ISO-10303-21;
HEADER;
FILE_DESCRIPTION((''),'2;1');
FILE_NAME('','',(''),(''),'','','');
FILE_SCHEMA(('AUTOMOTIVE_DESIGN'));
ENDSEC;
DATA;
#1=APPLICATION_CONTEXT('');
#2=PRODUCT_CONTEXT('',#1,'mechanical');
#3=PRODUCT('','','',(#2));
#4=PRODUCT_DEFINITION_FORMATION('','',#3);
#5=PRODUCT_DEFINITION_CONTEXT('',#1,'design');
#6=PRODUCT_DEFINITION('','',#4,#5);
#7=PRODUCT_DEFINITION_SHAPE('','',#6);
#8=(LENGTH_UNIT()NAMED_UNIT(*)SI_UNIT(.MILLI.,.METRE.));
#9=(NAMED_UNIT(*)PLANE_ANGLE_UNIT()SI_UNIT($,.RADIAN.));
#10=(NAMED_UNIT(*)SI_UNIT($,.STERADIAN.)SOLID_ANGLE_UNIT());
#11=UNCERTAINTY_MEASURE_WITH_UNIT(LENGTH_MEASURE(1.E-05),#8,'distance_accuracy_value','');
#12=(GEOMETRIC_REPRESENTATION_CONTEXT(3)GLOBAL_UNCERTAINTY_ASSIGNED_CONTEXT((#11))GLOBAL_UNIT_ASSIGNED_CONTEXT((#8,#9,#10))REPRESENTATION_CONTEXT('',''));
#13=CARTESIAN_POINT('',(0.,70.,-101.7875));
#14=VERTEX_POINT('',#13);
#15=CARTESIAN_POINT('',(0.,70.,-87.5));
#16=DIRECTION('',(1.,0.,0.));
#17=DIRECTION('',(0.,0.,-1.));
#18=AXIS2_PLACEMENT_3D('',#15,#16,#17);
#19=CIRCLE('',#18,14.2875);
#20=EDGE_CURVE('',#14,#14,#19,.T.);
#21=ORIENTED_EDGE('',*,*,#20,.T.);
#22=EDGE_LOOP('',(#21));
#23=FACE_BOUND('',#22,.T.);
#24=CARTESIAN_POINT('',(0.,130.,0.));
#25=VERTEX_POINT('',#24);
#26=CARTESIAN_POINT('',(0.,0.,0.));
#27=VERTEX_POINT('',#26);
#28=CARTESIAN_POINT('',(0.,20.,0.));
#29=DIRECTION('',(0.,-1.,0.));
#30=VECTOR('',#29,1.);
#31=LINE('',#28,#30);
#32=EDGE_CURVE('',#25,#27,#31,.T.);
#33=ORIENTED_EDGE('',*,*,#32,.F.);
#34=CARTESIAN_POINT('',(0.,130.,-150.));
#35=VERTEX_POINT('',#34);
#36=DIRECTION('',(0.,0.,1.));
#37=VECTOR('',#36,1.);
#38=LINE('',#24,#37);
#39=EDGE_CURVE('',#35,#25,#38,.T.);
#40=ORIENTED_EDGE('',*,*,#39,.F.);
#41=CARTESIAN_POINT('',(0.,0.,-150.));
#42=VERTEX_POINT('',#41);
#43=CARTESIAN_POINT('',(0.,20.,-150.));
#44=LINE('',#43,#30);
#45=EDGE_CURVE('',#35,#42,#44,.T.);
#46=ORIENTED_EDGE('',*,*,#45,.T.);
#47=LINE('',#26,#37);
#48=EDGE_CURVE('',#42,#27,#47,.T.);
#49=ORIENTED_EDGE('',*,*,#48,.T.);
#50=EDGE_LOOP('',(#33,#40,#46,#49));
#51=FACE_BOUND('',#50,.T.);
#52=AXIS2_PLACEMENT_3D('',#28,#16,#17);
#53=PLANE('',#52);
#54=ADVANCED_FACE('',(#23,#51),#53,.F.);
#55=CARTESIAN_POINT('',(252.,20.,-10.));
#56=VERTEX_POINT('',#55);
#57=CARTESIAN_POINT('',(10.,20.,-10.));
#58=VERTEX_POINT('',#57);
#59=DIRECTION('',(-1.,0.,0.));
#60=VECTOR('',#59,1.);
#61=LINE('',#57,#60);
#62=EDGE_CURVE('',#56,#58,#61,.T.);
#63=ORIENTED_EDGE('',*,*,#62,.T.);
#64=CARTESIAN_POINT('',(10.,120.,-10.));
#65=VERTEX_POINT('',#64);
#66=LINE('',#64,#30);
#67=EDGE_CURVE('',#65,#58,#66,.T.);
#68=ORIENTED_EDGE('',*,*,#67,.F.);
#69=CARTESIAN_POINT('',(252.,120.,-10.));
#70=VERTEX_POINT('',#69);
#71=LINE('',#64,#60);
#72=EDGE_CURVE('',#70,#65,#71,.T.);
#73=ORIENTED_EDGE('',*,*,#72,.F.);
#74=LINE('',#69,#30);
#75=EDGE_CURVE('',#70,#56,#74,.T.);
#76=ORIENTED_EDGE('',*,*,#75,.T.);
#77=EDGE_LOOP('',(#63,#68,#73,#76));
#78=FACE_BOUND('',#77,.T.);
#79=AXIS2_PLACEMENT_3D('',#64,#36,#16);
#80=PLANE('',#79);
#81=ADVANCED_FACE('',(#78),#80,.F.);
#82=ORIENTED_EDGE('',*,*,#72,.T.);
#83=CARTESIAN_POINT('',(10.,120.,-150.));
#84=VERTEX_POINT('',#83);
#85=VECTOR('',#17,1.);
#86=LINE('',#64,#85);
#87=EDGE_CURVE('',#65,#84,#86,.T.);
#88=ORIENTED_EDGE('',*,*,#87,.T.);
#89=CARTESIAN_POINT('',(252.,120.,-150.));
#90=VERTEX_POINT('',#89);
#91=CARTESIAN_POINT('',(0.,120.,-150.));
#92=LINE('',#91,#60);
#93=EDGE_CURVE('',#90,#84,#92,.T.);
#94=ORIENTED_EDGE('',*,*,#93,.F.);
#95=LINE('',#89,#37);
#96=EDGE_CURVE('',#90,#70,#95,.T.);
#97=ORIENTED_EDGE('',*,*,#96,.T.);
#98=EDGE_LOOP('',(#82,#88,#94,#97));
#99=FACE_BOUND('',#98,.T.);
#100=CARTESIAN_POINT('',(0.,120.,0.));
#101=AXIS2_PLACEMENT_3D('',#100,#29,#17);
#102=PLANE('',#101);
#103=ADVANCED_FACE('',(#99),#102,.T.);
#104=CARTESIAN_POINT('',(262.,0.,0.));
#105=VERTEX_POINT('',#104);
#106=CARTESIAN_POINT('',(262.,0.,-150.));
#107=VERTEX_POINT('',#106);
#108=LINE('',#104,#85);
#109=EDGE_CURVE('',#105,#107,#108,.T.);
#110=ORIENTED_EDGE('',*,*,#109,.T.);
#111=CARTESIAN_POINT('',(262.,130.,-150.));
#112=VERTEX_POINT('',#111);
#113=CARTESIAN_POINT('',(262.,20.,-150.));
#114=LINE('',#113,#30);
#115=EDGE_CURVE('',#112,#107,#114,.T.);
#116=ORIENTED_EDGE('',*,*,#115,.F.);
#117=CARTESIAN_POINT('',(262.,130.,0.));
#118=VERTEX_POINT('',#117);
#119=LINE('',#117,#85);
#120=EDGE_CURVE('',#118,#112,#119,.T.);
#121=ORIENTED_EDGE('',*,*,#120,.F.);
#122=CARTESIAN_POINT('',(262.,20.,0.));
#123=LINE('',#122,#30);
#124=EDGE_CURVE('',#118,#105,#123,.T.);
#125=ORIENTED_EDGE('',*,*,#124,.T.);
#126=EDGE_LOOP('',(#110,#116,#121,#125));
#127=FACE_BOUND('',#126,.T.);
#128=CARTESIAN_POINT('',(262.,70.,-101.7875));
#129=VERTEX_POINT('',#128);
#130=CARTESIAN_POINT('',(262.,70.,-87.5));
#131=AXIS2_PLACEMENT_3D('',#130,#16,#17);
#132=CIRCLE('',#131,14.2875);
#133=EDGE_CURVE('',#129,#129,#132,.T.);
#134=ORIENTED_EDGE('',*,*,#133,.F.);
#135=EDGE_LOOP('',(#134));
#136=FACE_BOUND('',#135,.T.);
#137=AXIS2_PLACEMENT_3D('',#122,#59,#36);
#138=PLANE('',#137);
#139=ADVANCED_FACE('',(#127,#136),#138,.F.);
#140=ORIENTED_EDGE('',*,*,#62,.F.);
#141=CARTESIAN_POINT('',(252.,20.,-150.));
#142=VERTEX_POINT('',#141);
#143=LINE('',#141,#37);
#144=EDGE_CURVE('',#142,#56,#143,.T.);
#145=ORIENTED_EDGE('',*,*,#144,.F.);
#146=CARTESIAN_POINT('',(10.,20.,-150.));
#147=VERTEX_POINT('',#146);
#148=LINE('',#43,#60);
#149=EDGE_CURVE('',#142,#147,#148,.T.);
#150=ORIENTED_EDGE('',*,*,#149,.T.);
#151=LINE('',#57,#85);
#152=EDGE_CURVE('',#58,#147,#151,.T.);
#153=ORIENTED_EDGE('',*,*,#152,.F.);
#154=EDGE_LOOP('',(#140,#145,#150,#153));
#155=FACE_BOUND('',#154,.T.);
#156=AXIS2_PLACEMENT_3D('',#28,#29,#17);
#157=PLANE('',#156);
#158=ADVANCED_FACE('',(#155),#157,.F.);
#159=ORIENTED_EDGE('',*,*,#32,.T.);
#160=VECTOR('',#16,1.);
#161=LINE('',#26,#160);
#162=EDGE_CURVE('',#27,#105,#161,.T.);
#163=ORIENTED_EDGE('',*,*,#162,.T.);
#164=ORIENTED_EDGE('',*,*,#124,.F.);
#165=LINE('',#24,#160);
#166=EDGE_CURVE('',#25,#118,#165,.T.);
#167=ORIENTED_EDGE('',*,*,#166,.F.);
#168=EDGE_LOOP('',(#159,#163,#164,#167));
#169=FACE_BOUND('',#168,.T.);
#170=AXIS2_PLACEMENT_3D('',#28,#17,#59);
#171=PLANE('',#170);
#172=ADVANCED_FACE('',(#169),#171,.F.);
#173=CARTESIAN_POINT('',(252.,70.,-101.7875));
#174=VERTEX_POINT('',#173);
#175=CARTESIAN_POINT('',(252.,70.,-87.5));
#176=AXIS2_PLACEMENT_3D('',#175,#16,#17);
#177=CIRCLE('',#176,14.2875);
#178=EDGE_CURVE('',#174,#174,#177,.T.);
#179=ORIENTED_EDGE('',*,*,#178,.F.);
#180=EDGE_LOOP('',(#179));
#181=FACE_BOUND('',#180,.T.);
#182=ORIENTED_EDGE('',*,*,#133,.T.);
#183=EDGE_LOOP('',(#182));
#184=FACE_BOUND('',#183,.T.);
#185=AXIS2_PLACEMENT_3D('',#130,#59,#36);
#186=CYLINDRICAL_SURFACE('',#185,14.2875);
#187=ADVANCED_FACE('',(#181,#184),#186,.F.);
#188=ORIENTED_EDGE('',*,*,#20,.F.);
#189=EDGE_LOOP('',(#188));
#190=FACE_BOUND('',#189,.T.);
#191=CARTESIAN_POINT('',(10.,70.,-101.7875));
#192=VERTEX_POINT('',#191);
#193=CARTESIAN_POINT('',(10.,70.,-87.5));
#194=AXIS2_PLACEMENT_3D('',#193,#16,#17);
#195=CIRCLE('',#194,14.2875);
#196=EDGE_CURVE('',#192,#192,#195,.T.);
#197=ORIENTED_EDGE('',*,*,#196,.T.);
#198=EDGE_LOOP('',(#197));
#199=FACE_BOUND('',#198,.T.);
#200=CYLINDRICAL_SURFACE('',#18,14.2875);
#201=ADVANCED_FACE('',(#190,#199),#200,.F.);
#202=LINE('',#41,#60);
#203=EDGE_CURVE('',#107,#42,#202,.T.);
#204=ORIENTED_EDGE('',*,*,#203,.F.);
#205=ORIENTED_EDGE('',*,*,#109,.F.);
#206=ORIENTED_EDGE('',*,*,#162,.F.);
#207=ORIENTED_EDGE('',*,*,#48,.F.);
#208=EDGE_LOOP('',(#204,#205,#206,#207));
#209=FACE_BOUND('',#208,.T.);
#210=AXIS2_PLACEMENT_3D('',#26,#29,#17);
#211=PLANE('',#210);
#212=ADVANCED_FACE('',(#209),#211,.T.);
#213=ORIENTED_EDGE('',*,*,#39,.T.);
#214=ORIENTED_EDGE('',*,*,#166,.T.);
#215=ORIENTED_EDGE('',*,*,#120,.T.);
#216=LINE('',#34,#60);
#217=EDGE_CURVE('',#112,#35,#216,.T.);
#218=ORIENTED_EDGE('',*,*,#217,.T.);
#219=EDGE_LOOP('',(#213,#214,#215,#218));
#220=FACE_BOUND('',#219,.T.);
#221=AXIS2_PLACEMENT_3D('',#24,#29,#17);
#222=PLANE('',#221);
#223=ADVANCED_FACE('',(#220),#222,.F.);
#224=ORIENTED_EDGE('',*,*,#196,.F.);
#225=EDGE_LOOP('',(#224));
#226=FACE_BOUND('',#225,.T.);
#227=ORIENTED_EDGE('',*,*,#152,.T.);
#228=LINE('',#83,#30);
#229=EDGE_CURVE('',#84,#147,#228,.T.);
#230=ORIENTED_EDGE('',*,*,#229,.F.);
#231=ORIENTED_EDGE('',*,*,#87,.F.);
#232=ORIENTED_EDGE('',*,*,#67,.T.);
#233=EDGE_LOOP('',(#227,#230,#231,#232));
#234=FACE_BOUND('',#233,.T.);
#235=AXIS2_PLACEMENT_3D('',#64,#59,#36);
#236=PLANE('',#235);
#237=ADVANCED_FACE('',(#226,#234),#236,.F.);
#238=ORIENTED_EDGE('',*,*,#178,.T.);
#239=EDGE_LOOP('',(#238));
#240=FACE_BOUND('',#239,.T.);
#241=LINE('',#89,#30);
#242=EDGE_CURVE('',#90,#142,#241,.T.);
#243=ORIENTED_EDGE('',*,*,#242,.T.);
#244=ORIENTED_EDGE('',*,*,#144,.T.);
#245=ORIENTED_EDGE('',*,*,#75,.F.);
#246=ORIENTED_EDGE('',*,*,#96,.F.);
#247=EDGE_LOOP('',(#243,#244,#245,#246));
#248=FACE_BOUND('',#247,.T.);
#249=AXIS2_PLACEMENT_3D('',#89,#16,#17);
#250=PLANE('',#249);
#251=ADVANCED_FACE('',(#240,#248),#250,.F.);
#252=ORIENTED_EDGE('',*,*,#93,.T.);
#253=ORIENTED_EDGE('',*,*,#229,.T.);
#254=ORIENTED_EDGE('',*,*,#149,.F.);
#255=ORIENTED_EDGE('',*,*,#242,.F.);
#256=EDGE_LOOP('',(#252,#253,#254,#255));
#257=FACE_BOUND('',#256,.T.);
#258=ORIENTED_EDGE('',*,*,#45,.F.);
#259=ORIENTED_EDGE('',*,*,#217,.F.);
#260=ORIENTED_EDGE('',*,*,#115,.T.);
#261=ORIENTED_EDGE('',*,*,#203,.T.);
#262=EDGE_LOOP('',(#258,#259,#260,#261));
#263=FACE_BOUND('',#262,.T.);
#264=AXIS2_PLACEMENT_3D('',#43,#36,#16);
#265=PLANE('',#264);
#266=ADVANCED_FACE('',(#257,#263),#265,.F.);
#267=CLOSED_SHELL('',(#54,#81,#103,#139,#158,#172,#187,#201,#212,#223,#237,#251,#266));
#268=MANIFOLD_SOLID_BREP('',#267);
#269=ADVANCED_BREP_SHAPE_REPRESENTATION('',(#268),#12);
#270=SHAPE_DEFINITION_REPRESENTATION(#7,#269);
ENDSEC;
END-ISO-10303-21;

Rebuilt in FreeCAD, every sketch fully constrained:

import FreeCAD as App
import Part
import Sketcher

V = App.Vector
Q = App.Units.Quantity

doc = App.newDocument("Part")
body = doc.addObject("PartDesign::Body", "Body")

# Sketch on XZ plane
sketch1 = body.newObject("Sketcher::SketchObject", "Sketch")
sketch1.AttachmentSupport = (doc.getObject("XZ_Plane"), [""])
sketch1.MapMode = "FlatFace"
sketch1.addGeometry(Part.LineSegment(V(0, -150, 0), V(0, 0, 0)), False)
sketch1.addGeometry(Part.LineSegment(V(0, 0, 0), V(262, 0, 0)), False)
sketch1.addGeometry(Part.LineSegment(V(262, 0, 0), V(262, -150, 0)), False)
sketch1.addGeometry(Part.LineSegment(V(262, -150, 0), V(0, -150, 0)), False)
sketch1.addConstraint(Sketcher.Constraint("Coincident", 0, 2, 1, 1))
sketch1.addConstraint(Sketcher.Constraint("Coincident", 1, 2, 2, 1))
sketch1.addConstraint(Sketcher.Constraint("Coincident", 2, 2, 3, 1))
sketch1.addConstraint(Sketcher.Constraint("Coincident", 3, 2, 0, 1))
sketch1.addConstraint(Sketcher.Constraint("Vertical", 0))
sketch1.addConstraint(Sketcher.Constraint("Horizontal", 1))
sketch1.addConstraint(Sketcher.Constraint("Vertical", 2))
sketch1.addConstraint(Sketcher.Constraint("Horizontal", 3))
sketch1.addConstraint(Sketcher.Constraint("Coincident", 0, 2, -1, 1))
sketch1.addConstraint(Sketcher.Constraint("DistanceX", 1, 1, 1, 2, Q("262 mm")))
sketch1.addConstraint(Sketcher.Constraint("DistanceY", 0, 1, 0, 2, Q("150 mm")))
pad1 = body.newObject("PartDesign::Pad", "Pad")
pad1.Profile = sketch1
pad1.Length = 20
pad1.Reversed = True

# Sketch on XZ plane
sketch2 = body.newObject("Sketcher::SketchObject", "Sketch001")
sketch2.AttachmentSupport = (doc.getObject("XZ_Plane"), [""])
sketch2.MapMode = "FlatFace"
sketch2.AttachmentOffset = App.Placement(V(0, 0, -20), App.Rotation())
sketch2.addGeometry(Part.LineSegment(V(0, 0, 0), V(262, 0, 0)), False)
sketch2.addGeometry(Part.LineSegment(V(262, 0, 0), V(262, -150, 0)), False)
sketch2.addGeometry(Part.LineSegment(V(262, -150, 0), V(252, -150, 0)), False)
sketch2.addGeometry(Part.LineSegment(V(252, -150, 0), V(252, -10, 0)), False)
sketch2.addGeometry(Part.LineSegment(V(252, -10, 0), V(10, -10, 0)), False)
sketch2.addGeometry(Part.LineSegment(V(10, -10, 0), V(10, -150, 0)), False)
sketch2.addGeometry(Part.LineSegment(V(10, -150, 0), V(0, -150, 0)), False)
sketch2.addGeometry(Part.LineSegment(V(0, -150, 0), V(0, 0, 0)), False)
sketch2.addConstraint(Sketcher.Constraint("Coincident", 0, 2, 1, 1))
sketch2.addConstraint(Sketcher.Constraint("Coincident", 1, 2, 2, 1))
sketch2.addConstraint(Sketcher.Constraint("Coincident", 2, 2, 3, 1))
sketch2.addConstraint(Sketcher.Constraint("Coincident", 3, 2, 4, 1))
sketch2.addConstraint(Sketcher.Constraint("Coincident", 4, 2, 5, 1))
sketch2.addConstraint(Sketcher.Constraint("Coincident", 5, 2, 6, 1))
sketch2.addConstraint(Sketcher.Constraint("Coincident", 6, 2, 7, 1))
sketch2.addConstraint(Sketcher.Constraint("Coincident", 7, 2, 0, 1))
sketch2.addConstraint(Sketcher.Constraint("Horizontal", 0))
sketch2.addConstraint(Sketcher.Constraint("Vertical", 1))
sketch2.addConstraint(Sketcher.Constraint("Horizontal", 2))
sketch2.addConstraint(Sketcher.Constraint("Vertical", 3))
sketch2.addConstraint(Sketcher.Constraint("Horizontal", 4))
sketch2.addConstraint(Sketcher.Constraint("Vertical", 5))
sketch2.addConstraint(Sketcher.Constraint("Horizontal", 6))
sketch2.addConstraint(Sketcher.Constraint("Vertical", 7))
sketch2.addConstraint(Sketcher.Constraint("Coincident", 7, 2, -1, 1))
sketch2.addConstraint(Sketcher.Constraint("Horizontal", 2, 2, 5, 2))
sketch2.addConstraint(Sketcher.Constraint("Equal", 2, 6))
sketch2.addConstraint(Sketcher.Constraint("DistanceX", 0, 1, 0, 2, Q("262 mm")))
sketch2.addConstraint(Sketcher.Constraint("DistanceX", 2, 2, 2, 1, Q("10 mm")))
sketch2.addConstraint(Sketcher.Constraint("DistanceY", 1, 2, 1, 1, Q("150 mm")))
sketch2.addConstraint(Sketcher.Constraint("DistanceY", 3, 1, 3, 2, Q("140 mm")))
pad2 = body.newObject("PartDesign::Pad", "Pad001")
pad2.Profile = sketch2
pad2.Length = 100
pad2.Reversed = True

# Sketch on YZ plane
sketch3 = body.newObject("Sketcher::SketchObject", "Sketch002")
sketch3.AttachmentSupport = (doc.getObject("YZ_Plane"), [""])
sketch3.MapMode = "FlatFace"
sketch3.AttachmentOffset = App.Placement(V(0, 0, 10), App.Rotation())
sketch3.addGeometry(Part.Circle(V(70, -88, 0), V(0, 0, 1), 14), False)
sketch3.addConstraint(Sketcher.Constraint("Diameter", 0, Q("28.575 mm")))
sketch3.addConstraint(Sketcher.Constraint("DistanceX", -1, 1, 0, 3, Q("70 mm")))
sketch3.addConstraint(Sketcher.Constraint("DistanceY", 0, 3, -1, 1, Q("87.5 mm")))
pocket1 = body.newObject("PartDesign::Pocket", "Pocket")
pocket1.Profile = sketch3
pocket1.Type = "ThroughAll"

# Sketch on YZ plane
sketch4 = body.newObject("Sketcher::SketchObject", "Sketch003")
sketch4.AttachmentSupport = (doc.getObject("YZ_Plane"), [""])
sketch4.MapMode = "FlatFace"
sketch4.AttachmentOffset = App.Placement(V(0, 0, 252), App.Rotation())
sketch4.addGeometry(Part.Circle(V(70, -88, 0), V(0, 0, 1), 14), False)
sketch4.addConstraint(Sketcher.Constraint("Diameter", 0, Q("28.575 mm")))
sketch4.addConstraint(Sketcher.Constraint("DistanceX", -1, 1, 0, 3, Q("70 mm")))
sketch4.addConstraint(Sketcher.Constraint("DistanceY", 0, 3, -1, 1, Q("87.5 mm")))
pocket2 = body.newObject("PartDesign::Pocket", "Pocket001")
pocket2.Profile = sketch4
pocket2.Type = "ThroughAll"
pocket2.Reversed = True

# Sketch on XZ plane
sketch5 = body.newObject("Sketcher::SketchObject", "Sketch004")
sketch5.AttachmentSupport = (doc.getObject("XZ_Plane"), [""])
sketch5.MapMode = "FlatFace"
sketch5.AttachmentOffset = App.Placement(V(0, 0, -120), App.Rotation())
sketch5.addGeometry(Part.LineSegment(V(0, -150, 0), V(0, 0, 0)), False)
sketch5.addGeometry(Part.LineSegment(V(0, 0, 0), V(262, 0, 0)), False)
sketch5.addGeometry(Part.LineSegment(V(262, 0, 0), V(262, -150, 0)), False)
sketch5.addGeometry(Part.LineSegment(V(262, -150, 0), V(0, -150, 0)), False)
sketch5.addConstraint(Sketcher.Constraint("Coincident", 0, 2, 1, 1))
sketch5.addConstraint(Sketcher.Constraint("Coincident", 1, 2, 2, 1))
sketch5.addConstraint(Sketcher.Constraint("Coincident", 2, 2, 3, 1))
sketch5.addConstraint(Sketcher.Constraint("Coincident", 3, 2, 0, 1))
sketch5.addConstraint(Sketcher.Constraint("Vertical", 0))
sketch5.addConstraint(Sketcher.Constraint("Horizontal", 1))
sketch5.addConstraint(Sketcher.Constraint("Vertical", 2))
sketch5.addConstraint(Sketcher.Constraint("Horizontal", 3))
sketch5.addConstraint(Sketcher.Constraint("Coincident", 0, 2, -1, 1))
sketch5.addConstraint(Sketcher.Constraint("DistanceX", 1, 1, 1, 2, Q("262 mm")))
sketch5.addConstraint(Sketcher.Constraint("DistanceY", 0, 1, 0, 2, Q("150 mm")))
pad3 = body.newObject("PartDesign::Pad", "Pad002")
pad3.Profile = sketch5
pad3.Length = 10
pad3.Reversed = True

doc.recompute()
